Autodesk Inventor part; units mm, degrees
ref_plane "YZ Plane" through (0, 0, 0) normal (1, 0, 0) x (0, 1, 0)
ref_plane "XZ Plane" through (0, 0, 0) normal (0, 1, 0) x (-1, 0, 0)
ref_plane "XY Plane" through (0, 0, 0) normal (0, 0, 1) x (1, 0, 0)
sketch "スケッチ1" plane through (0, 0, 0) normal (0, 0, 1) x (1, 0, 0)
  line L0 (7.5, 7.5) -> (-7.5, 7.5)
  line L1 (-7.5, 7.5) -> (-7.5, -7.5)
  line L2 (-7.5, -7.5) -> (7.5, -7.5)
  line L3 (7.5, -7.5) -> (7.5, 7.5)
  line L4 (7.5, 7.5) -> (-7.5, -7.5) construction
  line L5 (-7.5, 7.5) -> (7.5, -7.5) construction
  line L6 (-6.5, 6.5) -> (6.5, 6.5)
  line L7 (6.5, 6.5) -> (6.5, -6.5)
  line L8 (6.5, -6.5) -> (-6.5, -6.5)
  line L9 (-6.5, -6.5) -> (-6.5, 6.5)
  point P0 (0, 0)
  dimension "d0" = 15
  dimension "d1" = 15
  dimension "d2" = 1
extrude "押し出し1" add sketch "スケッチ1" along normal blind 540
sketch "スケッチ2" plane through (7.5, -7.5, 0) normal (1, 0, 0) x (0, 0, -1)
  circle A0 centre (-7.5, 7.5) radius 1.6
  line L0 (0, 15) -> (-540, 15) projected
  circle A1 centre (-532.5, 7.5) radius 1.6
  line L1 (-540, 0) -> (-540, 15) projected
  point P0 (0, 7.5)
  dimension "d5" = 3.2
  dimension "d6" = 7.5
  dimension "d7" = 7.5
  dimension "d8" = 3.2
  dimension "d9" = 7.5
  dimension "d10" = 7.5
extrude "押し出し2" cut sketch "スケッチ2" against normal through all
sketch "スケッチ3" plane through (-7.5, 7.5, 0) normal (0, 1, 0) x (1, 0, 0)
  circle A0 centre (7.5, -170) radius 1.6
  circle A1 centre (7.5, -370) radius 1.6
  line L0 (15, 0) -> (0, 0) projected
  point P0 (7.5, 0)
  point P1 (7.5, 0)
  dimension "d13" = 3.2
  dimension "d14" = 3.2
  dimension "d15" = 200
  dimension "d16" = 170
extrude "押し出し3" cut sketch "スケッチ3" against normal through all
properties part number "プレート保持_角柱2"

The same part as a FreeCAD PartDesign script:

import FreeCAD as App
import Part
import Sketcher
from FreeCAD import Vector


def add_polygon(sketch, points):
    """Adds a closed chain of lines whose ends are joined by coincident constraints."""
    first, n = sketch.GeometryCount, len(points)
    for a, b in zip(points, points[1:] + points[:1]):
        sketch.addGeometry(Part.LineSegment(App.Vector(*a, 0), App.Vector(*b, 0)), False)
    for i in range(n):
        sketch.addConstraint(Sketcher.Constraint("Coincident", first + i, 2, first + (i + 1) % n, 1))

doc = App.newDocument("Part")
body = doc.addObject("PartDesign::Body", "Body")

# Sketch on XY plane
sketch1 = body.newObject("Sketcher::SketchObject", "Sketch")
sketch1.AttachmentSupport = (doc.getObject("XY_Plane"), [""])
sketch1.MapMode = "FlatFace"
add_polygon(sketch1, [(8, -8), (8, 8), (-8, 8), (-8, -8)])  # lines 0-3
add_polygon(sketch1, [(-6, -6), (-6, 6), (6, 6), (6, -6)])  # lines 4-7
sketch1.addConstraint([
    Sketcher.Constraint("Vertical", 0),
    Sketcher.Constraint("Horizontal", 1),
    Sketcher.Constraint("Vertical", 2),
    Sketcher.Constraint("Horizontal", 3),
    Sketcher.Constraint("Vertical", 4),
    Sketcher.Constraint("Horizontal", 5),
    Sketcher.Constraint("Vertical", 6),
    Sketcher.Constraint("Horizontal", 7),
    Sketcher.Constraint("Symmetric", 0, 2, 2, 2, -1, 1),
    Sketcher.Constraint("Symmetric", 4, 2, 6, 2, -1, 1),
    Sketcher.Constraint("Equal", 3, 0),
    Sketcher.Constraint("Equal", 7, 4),
    Sketcher.Constraint("DistanceX", 1, 2, 1, 1, 15.0),
    Sketcher.Constraint("DistanceX", 1, 2, 4, 2, 1.0),
])
pad1 = body.newObject("PartDesign::Pad", "Pad")
pad1.Profile = sketch1
pad1.Length = 540

# Sketch on YZ plane
sketch2 = body.newObject("Sketcher::SketchObject", "Sketch001")
sketch2.AttachmentSupport = (doc.getObject("YZ_Plane"), [""])
sketch2.MapMode = "FlatFace"
sketch2.AttachmentOffset = App.Placement(Vector(0, 0, 7.5), App.Rotation())
sketch2.addGeometry([
    Part.Circle(Vector(0, 7.5, 0), Vector(0, 0, 1), 1.6),
    Part.Circle(Vector(0, 532.5, 0), Vector(0, 0, 1), 1.6),
], False)
sketch2.addConstraint([
    Sketcher.Constraint("Equal", 0, 1),
    Sketcher.Constraint("PointOnObject", 0, 3, -2),
    Sketcher.Constraint("PointOnObject", 1, 3, -2),
    Sketcher.Constraint("Diameter", 0, 3.2),
    Sketcher.Constraint("DistanceY", -1, 1, 0, 3, 7.5),
    Sketcher.Constraint("DistanceY", 0, 3, 1, 3, 525.0),
])
pocket1 = body.newObject("PartDesign::Pocket", "Pocket")
pocket1.Profile = sketch2
pocket1.Type = "ThroughAll"

# Sketch on XZ plane
sketch3 = body.newObject("Sketcher::SketchObject", "Sketch002")
sketch3.AttachmentSupport = (doc.getObject("XZ_Plane"), [""])
sketch3.MapMode = "FlatFace"
sketch3.AttachmentOffset = App.Placement(Vector(0, 0, -7.5), App.Rotation())
sketch3.addGeometry([
    Part.Circle(Vector(0, 170, 0), Vector(0, 0, 1), 1.6),
    Part.Circle(Vector(0, 370, 0), Vector(0, 0, 1), 1.6),
], False)
sketch3.addConstraint([
    Sketcher.Constraint("Equal", 0, 1),
    Sketcher.Constraint("PointOnObject", 0, 3, -2),
    Sketcher.Constraint("PointOnObject", 1, 3, -2),
    Sketcher.Constraint("Diameter", 0, 3.2),
    Sketcher.Constraint("DistanceY", -1, 1, 0, 3, 170.0),
    Sketcher.Constraint("DistanceY", 0, 3, 1, 3, 200.0),
])
pocket2 = body.newObject("PartDesign::Pocket", "Pocket001")
pocket2.Profile = sketch3
pocket2.Type = "ThroughAll"
pocket2.Reversed = True

doc.recompute()
